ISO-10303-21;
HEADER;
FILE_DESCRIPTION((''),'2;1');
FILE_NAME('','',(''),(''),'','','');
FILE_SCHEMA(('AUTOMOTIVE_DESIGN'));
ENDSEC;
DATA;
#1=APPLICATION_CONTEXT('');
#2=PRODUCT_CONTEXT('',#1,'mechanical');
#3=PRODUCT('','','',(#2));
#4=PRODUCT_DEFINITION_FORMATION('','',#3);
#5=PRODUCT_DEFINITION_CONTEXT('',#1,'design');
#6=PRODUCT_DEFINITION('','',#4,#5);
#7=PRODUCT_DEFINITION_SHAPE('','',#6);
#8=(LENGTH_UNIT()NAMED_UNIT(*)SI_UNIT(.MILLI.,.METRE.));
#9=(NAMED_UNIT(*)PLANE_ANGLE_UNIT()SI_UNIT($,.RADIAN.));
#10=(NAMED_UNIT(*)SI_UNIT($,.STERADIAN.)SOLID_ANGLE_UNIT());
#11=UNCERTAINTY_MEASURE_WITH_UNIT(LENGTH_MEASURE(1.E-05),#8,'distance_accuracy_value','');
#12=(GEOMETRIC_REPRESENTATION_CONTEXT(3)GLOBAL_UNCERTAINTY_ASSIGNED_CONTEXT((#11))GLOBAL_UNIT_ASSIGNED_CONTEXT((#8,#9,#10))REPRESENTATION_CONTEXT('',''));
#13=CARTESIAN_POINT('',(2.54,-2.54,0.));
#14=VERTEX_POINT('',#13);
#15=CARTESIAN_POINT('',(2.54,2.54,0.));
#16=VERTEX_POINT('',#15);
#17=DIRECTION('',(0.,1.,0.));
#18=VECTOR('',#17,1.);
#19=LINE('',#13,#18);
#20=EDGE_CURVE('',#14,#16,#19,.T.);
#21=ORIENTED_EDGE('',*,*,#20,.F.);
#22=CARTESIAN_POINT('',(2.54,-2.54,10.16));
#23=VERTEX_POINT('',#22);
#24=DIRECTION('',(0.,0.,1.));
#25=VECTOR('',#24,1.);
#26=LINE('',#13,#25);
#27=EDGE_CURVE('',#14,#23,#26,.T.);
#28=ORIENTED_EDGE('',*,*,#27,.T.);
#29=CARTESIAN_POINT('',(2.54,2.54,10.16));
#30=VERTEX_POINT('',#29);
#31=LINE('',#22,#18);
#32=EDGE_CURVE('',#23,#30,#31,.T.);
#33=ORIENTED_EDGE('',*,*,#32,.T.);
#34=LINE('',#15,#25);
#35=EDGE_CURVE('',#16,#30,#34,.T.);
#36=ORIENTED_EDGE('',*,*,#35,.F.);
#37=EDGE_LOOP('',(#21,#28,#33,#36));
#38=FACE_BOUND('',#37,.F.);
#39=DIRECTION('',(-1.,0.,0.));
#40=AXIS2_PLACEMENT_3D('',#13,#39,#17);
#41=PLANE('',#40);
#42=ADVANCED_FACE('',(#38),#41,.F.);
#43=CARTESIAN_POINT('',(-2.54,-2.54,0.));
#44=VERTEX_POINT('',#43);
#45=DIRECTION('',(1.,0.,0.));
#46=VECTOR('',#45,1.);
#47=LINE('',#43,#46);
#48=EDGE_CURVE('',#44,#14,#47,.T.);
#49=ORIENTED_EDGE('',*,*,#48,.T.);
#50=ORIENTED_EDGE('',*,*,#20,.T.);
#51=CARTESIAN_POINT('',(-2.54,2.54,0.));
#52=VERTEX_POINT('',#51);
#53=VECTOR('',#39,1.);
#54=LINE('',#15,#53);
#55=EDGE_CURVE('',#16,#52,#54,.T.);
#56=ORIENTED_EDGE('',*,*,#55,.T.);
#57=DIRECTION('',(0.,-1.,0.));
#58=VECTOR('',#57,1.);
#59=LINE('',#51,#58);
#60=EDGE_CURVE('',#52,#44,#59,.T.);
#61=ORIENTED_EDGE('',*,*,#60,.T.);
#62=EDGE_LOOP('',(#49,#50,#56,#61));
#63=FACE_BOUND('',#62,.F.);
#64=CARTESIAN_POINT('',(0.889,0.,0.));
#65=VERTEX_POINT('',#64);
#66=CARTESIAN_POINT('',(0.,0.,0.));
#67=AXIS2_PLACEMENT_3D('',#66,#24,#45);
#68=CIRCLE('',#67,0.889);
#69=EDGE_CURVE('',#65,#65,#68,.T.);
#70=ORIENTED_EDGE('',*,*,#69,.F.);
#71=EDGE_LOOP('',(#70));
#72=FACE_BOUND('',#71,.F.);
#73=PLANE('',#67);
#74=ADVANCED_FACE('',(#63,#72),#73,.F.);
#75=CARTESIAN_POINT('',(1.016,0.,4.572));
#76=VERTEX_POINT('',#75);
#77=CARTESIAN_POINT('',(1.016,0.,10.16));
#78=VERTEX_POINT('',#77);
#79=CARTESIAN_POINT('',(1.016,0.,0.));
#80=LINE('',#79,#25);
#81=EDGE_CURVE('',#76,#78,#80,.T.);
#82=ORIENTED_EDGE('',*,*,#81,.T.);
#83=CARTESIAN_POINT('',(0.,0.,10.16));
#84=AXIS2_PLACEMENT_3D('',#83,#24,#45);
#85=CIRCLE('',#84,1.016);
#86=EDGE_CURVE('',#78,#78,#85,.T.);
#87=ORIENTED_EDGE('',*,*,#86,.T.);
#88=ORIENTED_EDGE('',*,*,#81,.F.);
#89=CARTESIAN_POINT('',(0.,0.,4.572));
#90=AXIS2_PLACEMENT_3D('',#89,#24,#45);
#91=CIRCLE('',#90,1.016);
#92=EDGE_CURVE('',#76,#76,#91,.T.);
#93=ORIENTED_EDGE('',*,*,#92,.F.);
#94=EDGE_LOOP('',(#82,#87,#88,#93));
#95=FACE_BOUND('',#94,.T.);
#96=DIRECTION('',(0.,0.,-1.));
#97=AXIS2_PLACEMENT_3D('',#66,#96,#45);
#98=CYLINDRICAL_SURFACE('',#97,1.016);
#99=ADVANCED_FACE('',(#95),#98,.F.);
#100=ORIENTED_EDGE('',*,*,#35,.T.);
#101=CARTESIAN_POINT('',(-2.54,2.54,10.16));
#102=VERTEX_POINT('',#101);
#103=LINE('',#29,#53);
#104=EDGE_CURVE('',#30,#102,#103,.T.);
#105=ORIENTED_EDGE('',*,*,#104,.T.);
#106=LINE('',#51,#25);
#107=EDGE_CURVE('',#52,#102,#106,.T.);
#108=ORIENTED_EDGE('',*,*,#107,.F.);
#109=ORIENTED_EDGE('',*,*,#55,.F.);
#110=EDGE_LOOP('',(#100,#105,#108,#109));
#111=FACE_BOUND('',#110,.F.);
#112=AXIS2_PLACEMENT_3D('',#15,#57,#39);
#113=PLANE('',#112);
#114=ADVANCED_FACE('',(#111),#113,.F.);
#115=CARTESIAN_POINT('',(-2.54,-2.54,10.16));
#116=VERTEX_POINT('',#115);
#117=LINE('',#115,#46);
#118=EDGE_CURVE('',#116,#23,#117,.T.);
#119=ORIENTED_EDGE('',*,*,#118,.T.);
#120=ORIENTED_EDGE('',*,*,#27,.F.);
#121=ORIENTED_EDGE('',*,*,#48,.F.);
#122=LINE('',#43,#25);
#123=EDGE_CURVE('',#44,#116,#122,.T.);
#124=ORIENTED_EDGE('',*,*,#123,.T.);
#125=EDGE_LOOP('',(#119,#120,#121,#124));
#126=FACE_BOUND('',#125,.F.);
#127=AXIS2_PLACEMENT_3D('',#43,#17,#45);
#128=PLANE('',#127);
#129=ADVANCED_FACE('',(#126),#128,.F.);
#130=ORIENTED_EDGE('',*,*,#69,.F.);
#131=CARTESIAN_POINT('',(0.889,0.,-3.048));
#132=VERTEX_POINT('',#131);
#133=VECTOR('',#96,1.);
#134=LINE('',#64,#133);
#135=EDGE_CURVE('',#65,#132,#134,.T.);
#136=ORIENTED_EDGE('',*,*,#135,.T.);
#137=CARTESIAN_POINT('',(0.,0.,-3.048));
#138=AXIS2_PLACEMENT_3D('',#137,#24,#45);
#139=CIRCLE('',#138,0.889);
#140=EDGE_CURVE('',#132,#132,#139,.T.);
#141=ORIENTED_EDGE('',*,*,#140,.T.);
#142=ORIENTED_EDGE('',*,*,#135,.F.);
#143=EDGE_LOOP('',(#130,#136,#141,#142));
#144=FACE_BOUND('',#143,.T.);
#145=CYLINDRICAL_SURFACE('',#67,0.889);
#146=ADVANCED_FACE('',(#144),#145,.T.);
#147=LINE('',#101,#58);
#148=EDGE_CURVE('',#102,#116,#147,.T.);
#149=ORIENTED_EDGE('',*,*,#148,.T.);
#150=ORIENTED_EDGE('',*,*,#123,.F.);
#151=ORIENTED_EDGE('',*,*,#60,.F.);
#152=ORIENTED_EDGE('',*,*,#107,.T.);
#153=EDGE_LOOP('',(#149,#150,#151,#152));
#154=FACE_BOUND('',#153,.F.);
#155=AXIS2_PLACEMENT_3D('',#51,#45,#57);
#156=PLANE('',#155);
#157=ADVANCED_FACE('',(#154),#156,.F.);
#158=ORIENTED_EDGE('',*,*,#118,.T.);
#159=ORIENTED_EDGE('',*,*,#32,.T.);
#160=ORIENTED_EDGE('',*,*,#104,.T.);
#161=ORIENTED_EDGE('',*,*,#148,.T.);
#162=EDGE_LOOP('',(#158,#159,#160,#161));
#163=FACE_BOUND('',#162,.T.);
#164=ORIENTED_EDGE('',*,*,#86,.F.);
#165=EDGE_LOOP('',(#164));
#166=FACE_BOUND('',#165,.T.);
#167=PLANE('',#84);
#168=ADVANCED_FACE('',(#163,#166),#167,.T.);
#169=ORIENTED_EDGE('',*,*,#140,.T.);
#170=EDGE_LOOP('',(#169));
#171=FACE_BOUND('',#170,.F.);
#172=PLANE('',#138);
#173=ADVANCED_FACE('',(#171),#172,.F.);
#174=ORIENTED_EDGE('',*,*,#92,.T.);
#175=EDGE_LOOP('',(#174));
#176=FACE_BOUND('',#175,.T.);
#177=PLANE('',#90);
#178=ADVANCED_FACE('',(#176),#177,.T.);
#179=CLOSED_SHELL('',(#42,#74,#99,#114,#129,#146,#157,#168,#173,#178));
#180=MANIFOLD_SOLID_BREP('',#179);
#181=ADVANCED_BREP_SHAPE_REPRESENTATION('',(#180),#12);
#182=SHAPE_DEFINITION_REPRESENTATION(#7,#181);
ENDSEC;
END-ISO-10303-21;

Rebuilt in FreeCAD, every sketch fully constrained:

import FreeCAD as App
import Part
import Sketcher
from FreeCAD import Vector
Q = App.Units.Quantity


def add_polygon(sketch, points):
    """Adds a closed chain of lines whose ends are joined by coincident constraints."""
    first, n = sketch.GeometryCount, len(points)
    for a, b in zip(points, points[1:] + points[:1]):
        sketch.addGeometry(Part.LineSegment(App.Vector(*a, 0), App.Vector(*b, 0)), False)
    for i in range(n):
        sketch.addConstraint(Sketcher.Constraint("Coincident", first + i, 2, first + (i + 1) % n, 1))

doc = App.newDocument("Part")
body = doc.addObject("PartDesign::Body", "Body")

# Sketch on XY plane
sketch1 = body.newObject("Sketcher::SketchObject", "Sketch")
sketch1.AttachmentSupport = (doc.getObject("XY_Plane"), [""])
sketch1.MapMode = "FlatFace"
add_polygon(sketch1, [(2.54, -2.54), (2.54, 2.54), (-2.54, 2.54), (-2.54, -2.54)])  # lines 0-3
sketch1.addGeometry(Part.Circle(Vector(0, 0, 0), Vector(0, 0, 1), 1.016), False)  # 4
sketch1.addConstraint([
    Sketcher.Constraint("Vertical", 0),
    Sketcher.Constraint("Horizontal", 1),
    Sketcher.Constraint("Vertical", 2),
    Sketcher.Constraint("Horizontal", 3),
    Sketcher.Constraint("Coincident", 4, 3, -1, 1),
    Sketcher.Constraint("Symmetric", 0, 2, 2, 2, -1, 1),
    Sketcher.Constraint("Equal", 3, 0),
    Sketcher.Constraint("Diameter", 4, Q("0.08 in")),
    Sketcher.Constraint("DistanceX", 1, 2, 1, 1, Q("0.2 in")),
])
pad1 = body.newObject("PartDesign::Pad", "Pad")
pad1.Profile = sketch1
pad1.Length = Q("0.4 in")

# Sketch on XY plane
sketch2 = body.newObject("Sketcher::SketchObject", "Sketch001")
sketch2.AttachmentSupport = (doc.getObject("XY_Plane"), [""])
sketch2.MapMode = "FlatFace"
sketch2.addGeometry(Part.Circle(Vector(0, 0, 0), Vector(0, 0, 1), 1.016), False)
sketch2.addConstraint([
    Sketcher.Constraint("Coincident", 0, 3, -1, 1),
    Sketcher.Constraint("Diameter", 0, Q("0.08 in")),
])
pad2 = body.newObject("PartDesign::Pad", "Pad001")
pad2.Profile = sketch2
pad2.Length = Q("0.18 in")

# Sketch on XY plane
sketch3 = body.newObject("Sketcher::SketchObject", "Sketch002")
sketch3.AttachmentSupport = (doc.getObject("XY_Plane"), [""])
sketch3.MapMode = "FlatFace"
sketch3.addGeometry(Part.Circle(Vector(0, 0, 0), Vector(0, 0, 1), 0.889), False)
sketch3.addConstraint([
    Sketcher.Constraint("Coincident", 0, 3, -1, 1),
    Sketcher.Constraint("Diameter", 0, Q("0.07 in")),
])
pad3 = body.newObject("PartDesign::Pad", "Pad002")
pad3.Profile = sketch3
pad3.Length = Q("0.12 in")
pad3.Reversed = True

doc.recompute()
